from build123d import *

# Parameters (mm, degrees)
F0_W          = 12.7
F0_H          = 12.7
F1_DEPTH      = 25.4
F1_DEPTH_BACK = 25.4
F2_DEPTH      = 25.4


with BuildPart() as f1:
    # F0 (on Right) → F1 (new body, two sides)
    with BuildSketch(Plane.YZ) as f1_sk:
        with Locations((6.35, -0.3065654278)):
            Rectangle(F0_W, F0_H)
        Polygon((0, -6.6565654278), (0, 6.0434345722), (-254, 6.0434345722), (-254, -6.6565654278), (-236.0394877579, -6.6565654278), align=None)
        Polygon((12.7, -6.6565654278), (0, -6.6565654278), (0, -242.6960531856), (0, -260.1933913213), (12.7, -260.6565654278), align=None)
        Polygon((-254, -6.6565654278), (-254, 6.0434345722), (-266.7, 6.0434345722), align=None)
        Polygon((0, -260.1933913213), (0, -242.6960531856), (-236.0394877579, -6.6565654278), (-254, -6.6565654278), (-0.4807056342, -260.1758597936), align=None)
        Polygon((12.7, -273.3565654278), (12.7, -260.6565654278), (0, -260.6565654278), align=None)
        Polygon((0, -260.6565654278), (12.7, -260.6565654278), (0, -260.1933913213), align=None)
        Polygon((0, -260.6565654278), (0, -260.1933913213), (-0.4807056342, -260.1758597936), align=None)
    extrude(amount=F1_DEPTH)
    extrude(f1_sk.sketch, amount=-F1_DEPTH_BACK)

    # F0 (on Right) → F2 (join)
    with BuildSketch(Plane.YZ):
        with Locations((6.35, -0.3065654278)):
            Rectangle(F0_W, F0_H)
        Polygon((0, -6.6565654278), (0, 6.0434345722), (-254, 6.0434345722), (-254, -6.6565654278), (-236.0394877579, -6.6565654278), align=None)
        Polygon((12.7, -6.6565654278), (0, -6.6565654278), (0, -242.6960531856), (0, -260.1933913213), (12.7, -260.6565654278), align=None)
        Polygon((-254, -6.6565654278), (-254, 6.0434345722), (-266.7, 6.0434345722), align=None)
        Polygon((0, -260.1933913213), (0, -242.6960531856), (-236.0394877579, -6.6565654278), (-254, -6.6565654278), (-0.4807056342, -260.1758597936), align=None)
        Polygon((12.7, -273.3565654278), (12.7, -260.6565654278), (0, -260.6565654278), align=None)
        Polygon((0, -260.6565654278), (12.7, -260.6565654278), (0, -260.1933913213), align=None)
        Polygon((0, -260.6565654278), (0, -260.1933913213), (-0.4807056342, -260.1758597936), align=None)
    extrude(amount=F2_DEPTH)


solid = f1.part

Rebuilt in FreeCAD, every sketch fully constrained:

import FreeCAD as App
import Part
import Sketcher
from FreeCAD import Vector
Q = App.Units.Quantity


def add_polygon(sketch, points):
    """Adds a closed chain of lines whose ends are joined by coincident constraints."""
    first, n = sketch.GeometryCount, len(points)
    for a, b in zip(points, points[1:] + points[:1]):
        sketch.addGeometry(Part.LineSegment(App.Vector(*a, 0), App.Vector(*b, 0)), False)
    for i in range(n):
        sketch.addConstraint(Sketcher.Constraint("Coincident", first + i, 2, first + (i + 1) % n, 1))

doc = App.newDocument("Part")
params = doc.addObject("Spreadsheet::Sheet", "Params")
for row, (alias, value) in enumerate([
    ("sketch1_width", "11 in"),
    ("pad1_length", "1 in"),
    ("pad1_length2", "1 in"),
    ("sketch2_width", "11 in"),
    ("pad2_length", "1 in"),
], start=1):
    params.set(f"A{row}", alias)
    params.set(f"B{row}", "=" + value)
    params.setAlias(f"B{row}", alias)

body = doc.addObject("PartDesign::Body", "Body")

# Sketch on YZ plane
sketch1 = body.newObject("Sketcher::SketchObject", "Sketch")
sketch1.AttachmentSupport = (doc.getObject("YZ_Plane"), [""])
sketch1.MapMode = "FlatFace"
add_polygon(sketch1, [(12.7, 6.043435), (-266.7, 6.043435), (12.7, -273.356565)])  # lines 0-2
add_polygon(sketch1, [(-236.039488, -6.656565), (0, -6.656565), (0, -242.696053)])  # lines 3-5
sketch1.addConstraint(Sketcher.Constraint("Horizontal", 0))
sketch1.addConstraint(Sketcher.Constraint("Vertical", 2))
sketch1.addConstraint(Sketcher.Constraint("Horizontal", 3))
sketch1.addConstraint(Sketcher.Constraint("Vertical", 4))
sketch1.addConstraint(Sketcher.Constraint("PointOnObject", 3, 2, -2))
sketch1.addConstraint(Sketcher.Constraint("Parallel", 1, 5))
sketch1.addConstraint(Sketcher.Constraint("Equal", 0, 2))
sketch1.addConstraint(Sketcher.Constraint("DistanceX", 0, 2, 0, 1, Q("11 in")))
sketch1.addConstraint(Sketcher.Constraint("DistanceX", 0, 2, -1, 1, Q("10.5 in")))
sketch1.addConstraint(Sketcher.Constraint("DistanceY", 3, 2, 2, 2, Q("0.5 in")))
sketch1.addConstraint(Sketcher.Constraint("DistanceX", 3, 1, 3, 2, Q("236.039488 mm")))
sketch1.addConstraint(Sketcher.Constraint("DistanceY", -1, 1, 0, 2, Q("6.043435 mm")))
sketch1.setExpression("Constraints[13]", "Params.sketch1_width")
pad1 = body.newObject("PartDesign::Pad", "Pad")
pad1.Profile = sketch1
pad1.Type = "TwoLengths"
pad1.setExpression("Length", "Params.pad1_length")
pad1.setExpression("Length2", "Params.pad1_length2")

# Sketch on YZ plane
sketch2 = body.newObject("Sketcher::SketchObject", "Sketch001")
sketch2.AttachmentSupport = (doc.getObject("YZ_Plane"), [""])
sketch2.MapMode = "FlatFace"
add_polygon(sketch2, [(12.7, 6.043435), (-266.7, 6.043435), (12.7, -273.356565)])  # lines 0-2
add_polygon(sketch2, [(-236.039488, -6.656565), (0, -6.656565), (0, -242.696053)])  # lines 3-5
sketch2.addConstraint(Sketcher.Constraint("Horizontal", 0))
sketch2.addConstraint(Sketcher.Constraint("Vertical", 2))
sketch2.addConstraint(Sketcher.Constraint("Horizontal", 3))
sketch2.addConstraint(Sketcher.Constraint("Vertical", 4))
sketch2.addConstraint(Sketcher.Constraint("PointOnObject", 3, 2, -2))
sketch2.addConstraint(Sketcher.Constraint("Parallel", 1, 5))
sketch2.addConstraint(Sketcher.Constraint("Equal", 0, 2))
sketch2.addConstraint(Sketcher.Constraint("DistanceX", 0, 2, 0, 1, Q("11 in")))
sketch2.addConstraint(Sketcher.Constraint("DistanceX", 0, 2, -1, 1, Q("10.5 in")))
sketch2.addConstraint(Sketcher.Constraint("DistanceY", 3, 2, 2, 2, Q("0.5 in")))
sketch2.addConstraint(Sketcher.Constraint("DistanceX", 3, 1, 3, 2, Q("236.039488 mm")))
sketch2.addConstraint(Sketcher.Constraint("DistanceY", -1, 1, 0, 2, Q("6.043435 mm")))
sketch2.setExpression("Constraints[13]", "Params.sketch2_width")
pad2 = body.newObject("PartDesign::Pad", "Pad001")
pad2.Profile = sketch2
pad2.setExpression("Length", "Params.pad2_length")

doc.recompute()
